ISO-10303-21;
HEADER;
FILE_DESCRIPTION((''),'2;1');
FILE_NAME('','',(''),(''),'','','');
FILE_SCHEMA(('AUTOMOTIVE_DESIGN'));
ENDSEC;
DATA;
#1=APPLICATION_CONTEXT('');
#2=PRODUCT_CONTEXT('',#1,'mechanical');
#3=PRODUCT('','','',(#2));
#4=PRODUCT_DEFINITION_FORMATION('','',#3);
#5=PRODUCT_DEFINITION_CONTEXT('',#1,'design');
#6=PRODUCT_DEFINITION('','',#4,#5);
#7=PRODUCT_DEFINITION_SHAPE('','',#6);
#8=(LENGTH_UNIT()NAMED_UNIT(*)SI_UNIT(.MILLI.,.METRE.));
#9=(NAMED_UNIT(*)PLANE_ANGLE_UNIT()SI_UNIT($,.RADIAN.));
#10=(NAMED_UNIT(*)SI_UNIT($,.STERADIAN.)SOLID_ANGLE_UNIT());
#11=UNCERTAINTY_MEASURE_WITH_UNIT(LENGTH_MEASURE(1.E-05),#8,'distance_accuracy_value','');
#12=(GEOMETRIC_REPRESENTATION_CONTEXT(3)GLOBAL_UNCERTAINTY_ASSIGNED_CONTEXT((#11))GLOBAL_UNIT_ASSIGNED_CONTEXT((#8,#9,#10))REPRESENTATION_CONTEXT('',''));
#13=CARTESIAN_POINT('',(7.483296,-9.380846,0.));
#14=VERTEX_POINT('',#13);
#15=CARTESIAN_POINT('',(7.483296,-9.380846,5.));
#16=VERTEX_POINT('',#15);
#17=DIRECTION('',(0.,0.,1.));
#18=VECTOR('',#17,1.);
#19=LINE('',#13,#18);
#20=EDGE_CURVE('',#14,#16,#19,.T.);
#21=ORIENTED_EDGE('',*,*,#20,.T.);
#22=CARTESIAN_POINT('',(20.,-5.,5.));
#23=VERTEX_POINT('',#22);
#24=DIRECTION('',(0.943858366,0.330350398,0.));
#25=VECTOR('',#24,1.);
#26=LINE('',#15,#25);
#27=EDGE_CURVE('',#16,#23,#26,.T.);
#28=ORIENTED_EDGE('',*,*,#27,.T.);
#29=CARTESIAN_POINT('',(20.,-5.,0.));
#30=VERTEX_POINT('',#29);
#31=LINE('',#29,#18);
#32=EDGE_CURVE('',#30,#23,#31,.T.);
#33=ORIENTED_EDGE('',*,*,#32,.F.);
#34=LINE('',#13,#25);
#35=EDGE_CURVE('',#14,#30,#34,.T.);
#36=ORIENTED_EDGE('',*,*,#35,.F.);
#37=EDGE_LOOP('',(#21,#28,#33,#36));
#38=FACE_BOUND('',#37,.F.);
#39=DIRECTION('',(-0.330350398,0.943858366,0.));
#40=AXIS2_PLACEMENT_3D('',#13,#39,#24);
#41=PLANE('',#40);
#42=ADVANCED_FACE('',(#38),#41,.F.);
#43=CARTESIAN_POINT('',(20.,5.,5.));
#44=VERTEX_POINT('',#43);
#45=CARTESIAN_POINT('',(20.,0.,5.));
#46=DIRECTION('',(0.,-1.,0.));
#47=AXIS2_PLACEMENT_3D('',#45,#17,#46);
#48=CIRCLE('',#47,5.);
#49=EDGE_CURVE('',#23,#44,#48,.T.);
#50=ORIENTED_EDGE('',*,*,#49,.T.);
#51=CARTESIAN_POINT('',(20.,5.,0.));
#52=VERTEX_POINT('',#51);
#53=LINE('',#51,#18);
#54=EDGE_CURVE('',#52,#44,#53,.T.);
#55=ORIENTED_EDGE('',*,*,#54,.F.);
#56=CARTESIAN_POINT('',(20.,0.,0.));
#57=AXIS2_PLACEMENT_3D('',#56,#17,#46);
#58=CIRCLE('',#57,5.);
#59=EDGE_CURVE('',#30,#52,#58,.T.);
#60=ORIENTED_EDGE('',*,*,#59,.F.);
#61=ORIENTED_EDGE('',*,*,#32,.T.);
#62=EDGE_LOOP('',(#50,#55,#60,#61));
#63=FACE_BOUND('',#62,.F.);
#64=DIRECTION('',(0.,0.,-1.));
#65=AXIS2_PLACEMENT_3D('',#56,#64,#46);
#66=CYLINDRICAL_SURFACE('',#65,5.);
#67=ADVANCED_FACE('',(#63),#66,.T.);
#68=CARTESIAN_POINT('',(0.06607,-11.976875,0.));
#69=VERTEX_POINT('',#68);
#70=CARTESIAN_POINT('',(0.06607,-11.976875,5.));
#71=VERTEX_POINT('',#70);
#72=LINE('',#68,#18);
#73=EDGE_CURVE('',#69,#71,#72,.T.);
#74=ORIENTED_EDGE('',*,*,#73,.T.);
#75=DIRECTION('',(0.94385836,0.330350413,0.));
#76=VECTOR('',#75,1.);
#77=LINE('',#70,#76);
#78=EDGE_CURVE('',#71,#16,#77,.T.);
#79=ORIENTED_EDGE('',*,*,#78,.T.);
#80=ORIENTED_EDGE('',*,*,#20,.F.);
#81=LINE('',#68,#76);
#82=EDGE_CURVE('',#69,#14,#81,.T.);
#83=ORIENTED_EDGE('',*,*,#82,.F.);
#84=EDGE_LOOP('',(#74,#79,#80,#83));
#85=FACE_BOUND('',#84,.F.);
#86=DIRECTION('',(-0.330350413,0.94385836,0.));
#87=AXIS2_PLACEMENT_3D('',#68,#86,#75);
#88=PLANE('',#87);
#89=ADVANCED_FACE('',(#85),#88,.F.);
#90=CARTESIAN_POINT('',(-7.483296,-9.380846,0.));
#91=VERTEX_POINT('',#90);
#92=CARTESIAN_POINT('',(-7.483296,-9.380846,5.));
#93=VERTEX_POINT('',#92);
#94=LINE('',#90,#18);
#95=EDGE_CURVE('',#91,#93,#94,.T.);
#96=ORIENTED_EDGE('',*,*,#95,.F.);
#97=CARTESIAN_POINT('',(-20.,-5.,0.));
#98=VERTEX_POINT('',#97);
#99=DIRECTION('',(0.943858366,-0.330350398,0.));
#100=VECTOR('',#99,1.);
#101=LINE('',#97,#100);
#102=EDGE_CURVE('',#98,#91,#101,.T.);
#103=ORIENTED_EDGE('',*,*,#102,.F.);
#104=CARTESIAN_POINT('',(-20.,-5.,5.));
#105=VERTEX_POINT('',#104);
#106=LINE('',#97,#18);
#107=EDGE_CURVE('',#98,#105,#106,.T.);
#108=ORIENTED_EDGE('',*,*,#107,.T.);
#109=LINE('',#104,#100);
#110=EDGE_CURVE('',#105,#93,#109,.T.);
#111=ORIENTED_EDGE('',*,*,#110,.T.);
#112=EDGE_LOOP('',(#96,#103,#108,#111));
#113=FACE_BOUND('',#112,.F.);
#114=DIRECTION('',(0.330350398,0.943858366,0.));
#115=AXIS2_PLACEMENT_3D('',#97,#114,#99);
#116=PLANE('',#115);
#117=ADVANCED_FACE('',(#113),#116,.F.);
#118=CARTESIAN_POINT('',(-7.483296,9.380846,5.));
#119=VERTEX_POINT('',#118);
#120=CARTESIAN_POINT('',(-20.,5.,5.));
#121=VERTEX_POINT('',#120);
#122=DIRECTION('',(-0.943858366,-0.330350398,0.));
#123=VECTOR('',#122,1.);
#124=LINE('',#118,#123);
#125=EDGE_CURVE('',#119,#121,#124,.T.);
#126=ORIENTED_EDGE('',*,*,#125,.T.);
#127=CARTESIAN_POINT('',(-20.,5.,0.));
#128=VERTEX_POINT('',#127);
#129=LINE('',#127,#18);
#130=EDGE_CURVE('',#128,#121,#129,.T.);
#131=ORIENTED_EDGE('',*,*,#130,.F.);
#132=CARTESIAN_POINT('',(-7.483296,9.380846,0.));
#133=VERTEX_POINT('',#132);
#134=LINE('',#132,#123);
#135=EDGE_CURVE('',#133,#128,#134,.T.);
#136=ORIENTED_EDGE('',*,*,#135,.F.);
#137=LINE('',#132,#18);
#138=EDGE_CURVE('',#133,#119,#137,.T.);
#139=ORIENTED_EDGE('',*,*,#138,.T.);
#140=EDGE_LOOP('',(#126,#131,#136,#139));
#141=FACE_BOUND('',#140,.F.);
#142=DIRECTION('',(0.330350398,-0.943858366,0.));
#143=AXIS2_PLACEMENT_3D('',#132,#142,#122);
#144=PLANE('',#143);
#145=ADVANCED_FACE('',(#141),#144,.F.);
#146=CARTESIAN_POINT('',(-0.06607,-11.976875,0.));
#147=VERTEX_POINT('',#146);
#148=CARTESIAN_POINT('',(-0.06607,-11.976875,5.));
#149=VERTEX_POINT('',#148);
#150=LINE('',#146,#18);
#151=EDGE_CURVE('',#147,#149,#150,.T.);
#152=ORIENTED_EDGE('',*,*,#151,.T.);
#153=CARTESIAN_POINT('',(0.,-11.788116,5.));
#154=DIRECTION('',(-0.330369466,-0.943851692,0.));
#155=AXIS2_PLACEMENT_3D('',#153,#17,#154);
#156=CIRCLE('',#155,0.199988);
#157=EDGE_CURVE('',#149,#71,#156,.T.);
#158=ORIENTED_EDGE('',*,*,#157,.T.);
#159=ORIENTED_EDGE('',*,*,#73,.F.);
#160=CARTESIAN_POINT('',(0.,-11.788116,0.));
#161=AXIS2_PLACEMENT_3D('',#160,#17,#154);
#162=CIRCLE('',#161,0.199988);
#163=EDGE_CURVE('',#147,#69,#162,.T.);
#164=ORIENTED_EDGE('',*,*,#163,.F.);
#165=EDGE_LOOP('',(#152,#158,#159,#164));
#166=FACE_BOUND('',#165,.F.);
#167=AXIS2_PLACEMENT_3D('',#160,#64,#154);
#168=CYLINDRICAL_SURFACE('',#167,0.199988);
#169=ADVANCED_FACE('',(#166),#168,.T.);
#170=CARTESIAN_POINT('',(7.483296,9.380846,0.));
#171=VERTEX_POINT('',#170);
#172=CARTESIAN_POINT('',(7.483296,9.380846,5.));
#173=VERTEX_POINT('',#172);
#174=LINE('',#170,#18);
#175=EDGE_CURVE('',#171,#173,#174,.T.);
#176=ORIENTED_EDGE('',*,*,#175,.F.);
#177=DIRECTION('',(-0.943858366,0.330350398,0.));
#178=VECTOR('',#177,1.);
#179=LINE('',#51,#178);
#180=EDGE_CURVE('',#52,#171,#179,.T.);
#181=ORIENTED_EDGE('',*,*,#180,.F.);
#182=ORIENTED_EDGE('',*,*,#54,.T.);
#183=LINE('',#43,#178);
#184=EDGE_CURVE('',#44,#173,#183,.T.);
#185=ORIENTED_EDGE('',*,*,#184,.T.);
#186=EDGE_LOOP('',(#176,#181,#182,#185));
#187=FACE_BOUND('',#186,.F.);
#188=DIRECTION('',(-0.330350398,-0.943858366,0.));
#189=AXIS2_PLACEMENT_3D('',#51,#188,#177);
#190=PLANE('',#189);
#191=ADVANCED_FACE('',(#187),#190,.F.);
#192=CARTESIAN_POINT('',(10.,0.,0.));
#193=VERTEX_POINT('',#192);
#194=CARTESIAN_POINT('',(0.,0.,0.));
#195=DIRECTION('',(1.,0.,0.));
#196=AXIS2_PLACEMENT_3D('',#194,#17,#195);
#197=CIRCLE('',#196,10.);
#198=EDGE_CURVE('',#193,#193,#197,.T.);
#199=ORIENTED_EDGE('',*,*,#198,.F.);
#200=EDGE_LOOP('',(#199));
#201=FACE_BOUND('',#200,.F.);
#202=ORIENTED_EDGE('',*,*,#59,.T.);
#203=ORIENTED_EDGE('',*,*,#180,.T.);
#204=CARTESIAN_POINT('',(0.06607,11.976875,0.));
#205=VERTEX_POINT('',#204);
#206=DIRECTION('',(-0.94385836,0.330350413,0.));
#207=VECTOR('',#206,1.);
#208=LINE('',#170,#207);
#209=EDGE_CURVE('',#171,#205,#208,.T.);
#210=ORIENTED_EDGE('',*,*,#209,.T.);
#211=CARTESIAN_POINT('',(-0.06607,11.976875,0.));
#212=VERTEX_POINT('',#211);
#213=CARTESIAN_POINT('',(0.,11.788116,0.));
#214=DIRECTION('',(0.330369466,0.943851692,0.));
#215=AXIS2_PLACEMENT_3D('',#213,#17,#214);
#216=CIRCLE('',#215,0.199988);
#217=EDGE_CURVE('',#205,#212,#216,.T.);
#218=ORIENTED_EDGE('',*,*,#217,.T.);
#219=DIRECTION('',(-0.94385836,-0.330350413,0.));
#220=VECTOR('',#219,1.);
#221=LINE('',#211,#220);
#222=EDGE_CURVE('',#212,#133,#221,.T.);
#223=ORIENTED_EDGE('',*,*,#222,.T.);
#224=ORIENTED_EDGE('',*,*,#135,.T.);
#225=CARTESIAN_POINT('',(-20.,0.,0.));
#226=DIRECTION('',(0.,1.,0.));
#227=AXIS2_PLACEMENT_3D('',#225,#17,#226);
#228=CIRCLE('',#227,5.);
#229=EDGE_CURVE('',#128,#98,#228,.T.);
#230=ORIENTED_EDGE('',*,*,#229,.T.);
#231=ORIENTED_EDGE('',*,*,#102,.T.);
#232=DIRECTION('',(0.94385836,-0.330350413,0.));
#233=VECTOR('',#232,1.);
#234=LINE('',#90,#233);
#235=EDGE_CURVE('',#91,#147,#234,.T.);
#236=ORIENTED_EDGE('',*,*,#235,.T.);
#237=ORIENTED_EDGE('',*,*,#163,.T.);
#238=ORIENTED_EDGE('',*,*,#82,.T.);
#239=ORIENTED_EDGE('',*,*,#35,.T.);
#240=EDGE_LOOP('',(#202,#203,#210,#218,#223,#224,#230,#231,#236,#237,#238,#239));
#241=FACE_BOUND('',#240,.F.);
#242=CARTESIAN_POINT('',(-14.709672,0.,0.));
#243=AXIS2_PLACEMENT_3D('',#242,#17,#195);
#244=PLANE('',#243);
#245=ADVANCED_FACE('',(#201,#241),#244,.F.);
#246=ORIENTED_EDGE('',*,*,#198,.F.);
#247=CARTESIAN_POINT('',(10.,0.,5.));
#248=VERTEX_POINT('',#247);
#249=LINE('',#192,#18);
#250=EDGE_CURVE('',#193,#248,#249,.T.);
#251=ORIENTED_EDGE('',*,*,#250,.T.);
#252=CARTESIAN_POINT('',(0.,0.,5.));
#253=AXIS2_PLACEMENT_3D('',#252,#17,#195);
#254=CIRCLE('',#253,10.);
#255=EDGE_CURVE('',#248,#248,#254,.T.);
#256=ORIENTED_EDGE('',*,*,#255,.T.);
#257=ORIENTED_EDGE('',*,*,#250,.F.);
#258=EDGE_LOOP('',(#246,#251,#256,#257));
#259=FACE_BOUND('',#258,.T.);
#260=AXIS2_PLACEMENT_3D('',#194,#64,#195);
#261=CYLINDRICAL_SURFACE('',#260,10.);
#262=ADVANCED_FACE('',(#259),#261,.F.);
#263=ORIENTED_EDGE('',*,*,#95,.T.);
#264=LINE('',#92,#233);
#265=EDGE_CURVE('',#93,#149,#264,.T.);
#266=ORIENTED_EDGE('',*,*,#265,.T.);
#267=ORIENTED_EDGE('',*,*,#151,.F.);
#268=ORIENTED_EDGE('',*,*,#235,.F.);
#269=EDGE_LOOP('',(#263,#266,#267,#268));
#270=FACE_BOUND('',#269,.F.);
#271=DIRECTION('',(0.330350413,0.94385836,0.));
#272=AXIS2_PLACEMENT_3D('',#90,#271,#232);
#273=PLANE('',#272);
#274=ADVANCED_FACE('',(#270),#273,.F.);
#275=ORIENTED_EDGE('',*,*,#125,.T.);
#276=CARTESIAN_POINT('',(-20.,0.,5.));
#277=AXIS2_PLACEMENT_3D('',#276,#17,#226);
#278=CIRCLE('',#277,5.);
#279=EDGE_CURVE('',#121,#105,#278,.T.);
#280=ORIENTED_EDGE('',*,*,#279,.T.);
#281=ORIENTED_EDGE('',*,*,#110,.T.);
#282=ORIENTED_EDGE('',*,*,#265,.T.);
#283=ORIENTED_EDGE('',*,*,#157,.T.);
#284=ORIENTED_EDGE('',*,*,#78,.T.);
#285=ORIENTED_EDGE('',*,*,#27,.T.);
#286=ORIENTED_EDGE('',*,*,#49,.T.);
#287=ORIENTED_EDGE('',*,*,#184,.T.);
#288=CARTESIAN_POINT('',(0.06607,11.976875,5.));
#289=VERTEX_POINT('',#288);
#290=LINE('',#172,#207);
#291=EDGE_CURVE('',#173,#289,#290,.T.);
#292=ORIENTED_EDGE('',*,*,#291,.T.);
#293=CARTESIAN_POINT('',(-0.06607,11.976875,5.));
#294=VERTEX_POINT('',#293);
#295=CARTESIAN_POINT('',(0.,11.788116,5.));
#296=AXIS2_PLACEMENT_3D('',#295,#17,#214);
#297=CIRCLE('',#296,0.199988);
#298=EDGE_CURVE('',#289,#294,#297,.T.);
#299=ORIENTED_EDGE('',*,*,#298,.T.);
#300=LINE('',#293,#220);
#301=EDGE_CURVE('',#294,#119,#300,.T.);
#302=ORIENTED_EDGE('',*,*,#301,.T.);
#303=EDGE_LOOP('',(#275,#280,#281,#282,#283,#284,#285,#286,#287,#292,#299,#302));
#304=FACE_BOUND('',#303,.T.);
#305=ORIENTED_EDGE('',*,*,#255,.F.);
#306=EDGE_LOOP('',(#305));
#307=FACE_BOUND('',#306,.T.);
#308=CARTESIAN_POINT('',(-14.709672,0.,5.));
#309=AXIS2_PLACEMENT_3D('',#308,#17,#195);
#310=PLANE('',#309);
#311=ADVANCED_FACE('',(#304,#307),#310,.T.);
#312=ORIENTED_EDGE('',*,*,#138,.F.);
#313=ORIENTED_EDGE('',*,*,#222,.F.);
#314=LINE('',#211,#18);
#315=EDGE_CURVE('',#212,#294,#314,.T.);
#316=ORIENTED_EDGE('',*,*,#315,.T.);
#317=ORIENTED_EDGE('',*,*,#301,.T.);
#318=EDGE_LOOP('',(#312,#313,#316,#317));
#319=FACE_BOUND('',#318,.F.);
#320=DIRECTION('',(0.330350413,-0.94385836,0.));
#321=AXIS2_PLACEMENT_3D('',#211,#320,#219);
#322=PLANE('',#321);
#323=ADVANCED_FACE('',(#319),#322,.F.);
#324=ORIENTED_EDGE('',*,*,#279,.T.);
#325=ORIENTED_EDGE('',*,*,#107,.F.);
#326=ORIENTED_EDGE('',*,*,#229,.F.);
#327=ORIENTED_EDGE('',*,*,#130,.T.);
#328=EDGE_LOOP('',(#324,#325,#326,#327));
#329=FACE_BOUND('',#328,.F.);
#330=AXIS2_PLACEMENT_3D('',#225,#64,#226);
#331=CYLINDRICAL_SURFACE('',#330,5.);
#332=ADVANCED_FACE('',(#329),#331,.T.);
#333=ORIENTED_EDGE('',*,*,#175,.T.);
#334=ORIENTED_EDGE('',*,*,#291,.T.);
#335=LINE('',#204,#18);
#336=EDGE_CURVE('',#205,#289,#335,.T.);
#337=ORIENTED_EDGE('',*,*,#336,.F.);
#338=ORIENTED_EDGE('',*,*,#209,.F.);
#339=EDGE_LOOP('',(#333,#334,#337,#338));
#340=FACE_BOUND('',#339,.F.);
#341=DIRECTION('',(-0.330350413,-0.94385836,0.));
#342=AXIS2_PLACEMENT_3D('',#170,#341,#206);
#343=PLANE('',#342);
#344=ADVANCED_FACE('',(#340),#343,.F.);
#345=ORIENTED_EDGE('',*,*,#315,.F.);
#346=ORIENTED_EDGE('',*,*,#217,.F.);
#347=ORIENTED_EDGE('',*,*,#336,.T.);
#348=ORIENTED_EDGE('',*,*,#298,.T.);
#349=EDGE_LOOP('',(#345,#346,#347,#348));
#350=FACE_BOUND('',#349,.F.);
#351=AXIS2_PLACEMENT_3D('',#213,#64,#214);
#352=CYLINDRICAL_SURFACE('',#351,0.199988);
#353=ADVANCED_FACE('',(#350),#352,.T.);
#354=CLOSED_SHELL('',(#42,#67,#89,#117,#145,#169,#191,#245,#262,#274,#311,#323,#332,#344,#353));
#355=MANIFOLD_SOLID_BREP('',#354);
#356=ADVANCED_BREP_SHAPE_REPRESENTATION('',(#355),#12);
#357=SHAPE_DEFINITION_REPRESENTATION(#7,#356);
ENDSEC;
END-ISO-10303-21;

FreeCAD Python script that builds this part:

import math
import FreeCAD as App
import Part
import Sketcher
from FreeCAD import Vector
Q = App.Units.Quantity

doc = App.newDocument("Part")
body = doc.addObject("PartDesign::Body", "Body")

sketch1 = body.newObject("Sketcher::SketchObject", "Sketch")
sketch1.AttachmentSupport = (doc.getObject("XY_Plane"), [""])
sketch1.MapMode = "FlatFace"
sketch1.addGeometry([
    Part.LineSegment(Vector(-7.48, 9.38, 0), Vector(-20, 5, 0)),
    Part.ArcOfCircle(Part.Circle(Vector(-20, 0, 0), Vector(0, 0, 1), 5), math.radians(90), math.radians(270)),
    Part.LineSegment(Vector(-20, -5, 0), Vector(-7.48, -9.38, 0)),
    Part.LineSegment(Vector(-7.48, -9.38, 0), Vector(-0.07, -11.98, 0)),
    Part.ArcOfCircle(Part.Circle(Vector(0, -11.79, 0), Vector(0, 0, 1), 0.2), math.radians(-109), math.radians(-71)),
    Part.LineSegment(Vector(0.07, -11.98, 0), Vector(7.48, -9.38, 0)),
    Part.LineSegment(Vector(7.48, -9.38, 0), Vector(20, -5, 0)),
    Part.ArcOfCircle(Part.Circle(Vector(20, 0, 0), Vector(0, 0, 1), 5), math.radians(-90), math.radians(90)),
    Part.LineSegment(Vector(20, 5, 0), Vector(7.48, 9.38, 0)),
    Part.LineSegment(Vector(7.48, 9.38, 0), Vector(0.07, 11.98, 0)),
    Part.ArcOfCircle(Part.Circle(Vector(0, 11.79, 0), Vector(0, 0, 1), 0.2), math.radians(71), math.radians(109)),
    Part.LineSegment(Vector(-0.07, 11.98, 0), Vector(-7.48, 9.38, 0)),
    Part.Circle(Vector(0, 0, 0), Vector(0, 0, 1), 10),
], False)
sketch1.addConstraint([
    Sketcher.Constraint("Coincident", 0, 2, 1, 1),
    Sketcher.Constraint("Coincident", 1, 2, 2, 1),
    Sketcher.Constraint("Coincident", 2, 2, 3, 1),
    Sketcher.Constraint("Coincident", 3, 2, 4, 1),
    Sketcher.Constraint("Coincident", 4, 2, 5, 1),
    Sketcher.Constraint("Coincident", 5, 2, 6, 1),
    Sketcher.Constraint("Coincident", 6, 2, 7, 1),
    Sketcher.Constraint("Coincident", 7, 2, 8, 1),
    Sketcher.Constraint("Coincident", 8, 2, 9, 1),
    Sketcher.Constraint("Coincident", 9, 2, 10, 1),
    Sketcher.Constraint("Coincident", 10, 2, 11, 1),
    Sketcher.Constraint("Coincident", 11, 2, 0, 1),
    Sketcher.Constraint("Coincident", 12, 3, -1, 1),
    Sketcher.Constraint("Equal", 1, 7),
    Sketcher.Constraint("Equal", 4, 10),
    Sketcher.Constraint("Symmetric", 1, 3, 7, 3, -1, 1),
    Sketcher.Constraint("Symmetric", 4, 3, 10, 3, -1, 1),
    Sketcher.Constraint("Symmetric", 2, 2, 8, 2, -1, 1),
    Sketcher.Constraint("Symmetric", 5, 2, 11, 2, -1, 1),
    Sketcher.Constraint("Symmetric", 3, 2, 4, 2, -2),
    Sketcher.Constraint("Symmetric", 2, 2, 5, 2, -2),
    Sketcher.Constraint("Symmetric", 1, 2, 6, 2, -2),
    Sketcher.Constraint("Parallel", 2, 3),
    Sketcher.Constraint("Parallel", 0, 5),
    Sketcher.Constraint("Parallel", 3, 8),
    Sketcher.Constraint("Horizontal", 9, 2, 10, 2),
    Sketcher.Constraint("Vertical", 1, 3, 0, 2),
    Sketcher.Constraint("Vertical", 4, 2, 9, 2),
    Sketcher.Constraint("Diameter", 12, Q("20 mm")),
    Sketcher.Constraint("Radius", 1, Q("5 mm")),
    Sketcher.Constraint("DistanceX", 1, 3, -1, 1, Q("20 mm")),
    Sketcher.Constraint("Radius", 4, Q("0.199988 mm")),
    Sketcher.Constraint("Distance", 0, Q("13.26121 mm")),
    Sketcher.Constraint("Distance", 3, Q("7.85841 mm")),
    Sketcher.Constraint("DistanceX", 3, 2, -1, 1, Q("0.06607 mm")),
])
pad1 = body.newObject("PartDesign::Pad", "Pad")
pad1.Profile = sketch1
pad1.Length = 5

doc.recompute()
